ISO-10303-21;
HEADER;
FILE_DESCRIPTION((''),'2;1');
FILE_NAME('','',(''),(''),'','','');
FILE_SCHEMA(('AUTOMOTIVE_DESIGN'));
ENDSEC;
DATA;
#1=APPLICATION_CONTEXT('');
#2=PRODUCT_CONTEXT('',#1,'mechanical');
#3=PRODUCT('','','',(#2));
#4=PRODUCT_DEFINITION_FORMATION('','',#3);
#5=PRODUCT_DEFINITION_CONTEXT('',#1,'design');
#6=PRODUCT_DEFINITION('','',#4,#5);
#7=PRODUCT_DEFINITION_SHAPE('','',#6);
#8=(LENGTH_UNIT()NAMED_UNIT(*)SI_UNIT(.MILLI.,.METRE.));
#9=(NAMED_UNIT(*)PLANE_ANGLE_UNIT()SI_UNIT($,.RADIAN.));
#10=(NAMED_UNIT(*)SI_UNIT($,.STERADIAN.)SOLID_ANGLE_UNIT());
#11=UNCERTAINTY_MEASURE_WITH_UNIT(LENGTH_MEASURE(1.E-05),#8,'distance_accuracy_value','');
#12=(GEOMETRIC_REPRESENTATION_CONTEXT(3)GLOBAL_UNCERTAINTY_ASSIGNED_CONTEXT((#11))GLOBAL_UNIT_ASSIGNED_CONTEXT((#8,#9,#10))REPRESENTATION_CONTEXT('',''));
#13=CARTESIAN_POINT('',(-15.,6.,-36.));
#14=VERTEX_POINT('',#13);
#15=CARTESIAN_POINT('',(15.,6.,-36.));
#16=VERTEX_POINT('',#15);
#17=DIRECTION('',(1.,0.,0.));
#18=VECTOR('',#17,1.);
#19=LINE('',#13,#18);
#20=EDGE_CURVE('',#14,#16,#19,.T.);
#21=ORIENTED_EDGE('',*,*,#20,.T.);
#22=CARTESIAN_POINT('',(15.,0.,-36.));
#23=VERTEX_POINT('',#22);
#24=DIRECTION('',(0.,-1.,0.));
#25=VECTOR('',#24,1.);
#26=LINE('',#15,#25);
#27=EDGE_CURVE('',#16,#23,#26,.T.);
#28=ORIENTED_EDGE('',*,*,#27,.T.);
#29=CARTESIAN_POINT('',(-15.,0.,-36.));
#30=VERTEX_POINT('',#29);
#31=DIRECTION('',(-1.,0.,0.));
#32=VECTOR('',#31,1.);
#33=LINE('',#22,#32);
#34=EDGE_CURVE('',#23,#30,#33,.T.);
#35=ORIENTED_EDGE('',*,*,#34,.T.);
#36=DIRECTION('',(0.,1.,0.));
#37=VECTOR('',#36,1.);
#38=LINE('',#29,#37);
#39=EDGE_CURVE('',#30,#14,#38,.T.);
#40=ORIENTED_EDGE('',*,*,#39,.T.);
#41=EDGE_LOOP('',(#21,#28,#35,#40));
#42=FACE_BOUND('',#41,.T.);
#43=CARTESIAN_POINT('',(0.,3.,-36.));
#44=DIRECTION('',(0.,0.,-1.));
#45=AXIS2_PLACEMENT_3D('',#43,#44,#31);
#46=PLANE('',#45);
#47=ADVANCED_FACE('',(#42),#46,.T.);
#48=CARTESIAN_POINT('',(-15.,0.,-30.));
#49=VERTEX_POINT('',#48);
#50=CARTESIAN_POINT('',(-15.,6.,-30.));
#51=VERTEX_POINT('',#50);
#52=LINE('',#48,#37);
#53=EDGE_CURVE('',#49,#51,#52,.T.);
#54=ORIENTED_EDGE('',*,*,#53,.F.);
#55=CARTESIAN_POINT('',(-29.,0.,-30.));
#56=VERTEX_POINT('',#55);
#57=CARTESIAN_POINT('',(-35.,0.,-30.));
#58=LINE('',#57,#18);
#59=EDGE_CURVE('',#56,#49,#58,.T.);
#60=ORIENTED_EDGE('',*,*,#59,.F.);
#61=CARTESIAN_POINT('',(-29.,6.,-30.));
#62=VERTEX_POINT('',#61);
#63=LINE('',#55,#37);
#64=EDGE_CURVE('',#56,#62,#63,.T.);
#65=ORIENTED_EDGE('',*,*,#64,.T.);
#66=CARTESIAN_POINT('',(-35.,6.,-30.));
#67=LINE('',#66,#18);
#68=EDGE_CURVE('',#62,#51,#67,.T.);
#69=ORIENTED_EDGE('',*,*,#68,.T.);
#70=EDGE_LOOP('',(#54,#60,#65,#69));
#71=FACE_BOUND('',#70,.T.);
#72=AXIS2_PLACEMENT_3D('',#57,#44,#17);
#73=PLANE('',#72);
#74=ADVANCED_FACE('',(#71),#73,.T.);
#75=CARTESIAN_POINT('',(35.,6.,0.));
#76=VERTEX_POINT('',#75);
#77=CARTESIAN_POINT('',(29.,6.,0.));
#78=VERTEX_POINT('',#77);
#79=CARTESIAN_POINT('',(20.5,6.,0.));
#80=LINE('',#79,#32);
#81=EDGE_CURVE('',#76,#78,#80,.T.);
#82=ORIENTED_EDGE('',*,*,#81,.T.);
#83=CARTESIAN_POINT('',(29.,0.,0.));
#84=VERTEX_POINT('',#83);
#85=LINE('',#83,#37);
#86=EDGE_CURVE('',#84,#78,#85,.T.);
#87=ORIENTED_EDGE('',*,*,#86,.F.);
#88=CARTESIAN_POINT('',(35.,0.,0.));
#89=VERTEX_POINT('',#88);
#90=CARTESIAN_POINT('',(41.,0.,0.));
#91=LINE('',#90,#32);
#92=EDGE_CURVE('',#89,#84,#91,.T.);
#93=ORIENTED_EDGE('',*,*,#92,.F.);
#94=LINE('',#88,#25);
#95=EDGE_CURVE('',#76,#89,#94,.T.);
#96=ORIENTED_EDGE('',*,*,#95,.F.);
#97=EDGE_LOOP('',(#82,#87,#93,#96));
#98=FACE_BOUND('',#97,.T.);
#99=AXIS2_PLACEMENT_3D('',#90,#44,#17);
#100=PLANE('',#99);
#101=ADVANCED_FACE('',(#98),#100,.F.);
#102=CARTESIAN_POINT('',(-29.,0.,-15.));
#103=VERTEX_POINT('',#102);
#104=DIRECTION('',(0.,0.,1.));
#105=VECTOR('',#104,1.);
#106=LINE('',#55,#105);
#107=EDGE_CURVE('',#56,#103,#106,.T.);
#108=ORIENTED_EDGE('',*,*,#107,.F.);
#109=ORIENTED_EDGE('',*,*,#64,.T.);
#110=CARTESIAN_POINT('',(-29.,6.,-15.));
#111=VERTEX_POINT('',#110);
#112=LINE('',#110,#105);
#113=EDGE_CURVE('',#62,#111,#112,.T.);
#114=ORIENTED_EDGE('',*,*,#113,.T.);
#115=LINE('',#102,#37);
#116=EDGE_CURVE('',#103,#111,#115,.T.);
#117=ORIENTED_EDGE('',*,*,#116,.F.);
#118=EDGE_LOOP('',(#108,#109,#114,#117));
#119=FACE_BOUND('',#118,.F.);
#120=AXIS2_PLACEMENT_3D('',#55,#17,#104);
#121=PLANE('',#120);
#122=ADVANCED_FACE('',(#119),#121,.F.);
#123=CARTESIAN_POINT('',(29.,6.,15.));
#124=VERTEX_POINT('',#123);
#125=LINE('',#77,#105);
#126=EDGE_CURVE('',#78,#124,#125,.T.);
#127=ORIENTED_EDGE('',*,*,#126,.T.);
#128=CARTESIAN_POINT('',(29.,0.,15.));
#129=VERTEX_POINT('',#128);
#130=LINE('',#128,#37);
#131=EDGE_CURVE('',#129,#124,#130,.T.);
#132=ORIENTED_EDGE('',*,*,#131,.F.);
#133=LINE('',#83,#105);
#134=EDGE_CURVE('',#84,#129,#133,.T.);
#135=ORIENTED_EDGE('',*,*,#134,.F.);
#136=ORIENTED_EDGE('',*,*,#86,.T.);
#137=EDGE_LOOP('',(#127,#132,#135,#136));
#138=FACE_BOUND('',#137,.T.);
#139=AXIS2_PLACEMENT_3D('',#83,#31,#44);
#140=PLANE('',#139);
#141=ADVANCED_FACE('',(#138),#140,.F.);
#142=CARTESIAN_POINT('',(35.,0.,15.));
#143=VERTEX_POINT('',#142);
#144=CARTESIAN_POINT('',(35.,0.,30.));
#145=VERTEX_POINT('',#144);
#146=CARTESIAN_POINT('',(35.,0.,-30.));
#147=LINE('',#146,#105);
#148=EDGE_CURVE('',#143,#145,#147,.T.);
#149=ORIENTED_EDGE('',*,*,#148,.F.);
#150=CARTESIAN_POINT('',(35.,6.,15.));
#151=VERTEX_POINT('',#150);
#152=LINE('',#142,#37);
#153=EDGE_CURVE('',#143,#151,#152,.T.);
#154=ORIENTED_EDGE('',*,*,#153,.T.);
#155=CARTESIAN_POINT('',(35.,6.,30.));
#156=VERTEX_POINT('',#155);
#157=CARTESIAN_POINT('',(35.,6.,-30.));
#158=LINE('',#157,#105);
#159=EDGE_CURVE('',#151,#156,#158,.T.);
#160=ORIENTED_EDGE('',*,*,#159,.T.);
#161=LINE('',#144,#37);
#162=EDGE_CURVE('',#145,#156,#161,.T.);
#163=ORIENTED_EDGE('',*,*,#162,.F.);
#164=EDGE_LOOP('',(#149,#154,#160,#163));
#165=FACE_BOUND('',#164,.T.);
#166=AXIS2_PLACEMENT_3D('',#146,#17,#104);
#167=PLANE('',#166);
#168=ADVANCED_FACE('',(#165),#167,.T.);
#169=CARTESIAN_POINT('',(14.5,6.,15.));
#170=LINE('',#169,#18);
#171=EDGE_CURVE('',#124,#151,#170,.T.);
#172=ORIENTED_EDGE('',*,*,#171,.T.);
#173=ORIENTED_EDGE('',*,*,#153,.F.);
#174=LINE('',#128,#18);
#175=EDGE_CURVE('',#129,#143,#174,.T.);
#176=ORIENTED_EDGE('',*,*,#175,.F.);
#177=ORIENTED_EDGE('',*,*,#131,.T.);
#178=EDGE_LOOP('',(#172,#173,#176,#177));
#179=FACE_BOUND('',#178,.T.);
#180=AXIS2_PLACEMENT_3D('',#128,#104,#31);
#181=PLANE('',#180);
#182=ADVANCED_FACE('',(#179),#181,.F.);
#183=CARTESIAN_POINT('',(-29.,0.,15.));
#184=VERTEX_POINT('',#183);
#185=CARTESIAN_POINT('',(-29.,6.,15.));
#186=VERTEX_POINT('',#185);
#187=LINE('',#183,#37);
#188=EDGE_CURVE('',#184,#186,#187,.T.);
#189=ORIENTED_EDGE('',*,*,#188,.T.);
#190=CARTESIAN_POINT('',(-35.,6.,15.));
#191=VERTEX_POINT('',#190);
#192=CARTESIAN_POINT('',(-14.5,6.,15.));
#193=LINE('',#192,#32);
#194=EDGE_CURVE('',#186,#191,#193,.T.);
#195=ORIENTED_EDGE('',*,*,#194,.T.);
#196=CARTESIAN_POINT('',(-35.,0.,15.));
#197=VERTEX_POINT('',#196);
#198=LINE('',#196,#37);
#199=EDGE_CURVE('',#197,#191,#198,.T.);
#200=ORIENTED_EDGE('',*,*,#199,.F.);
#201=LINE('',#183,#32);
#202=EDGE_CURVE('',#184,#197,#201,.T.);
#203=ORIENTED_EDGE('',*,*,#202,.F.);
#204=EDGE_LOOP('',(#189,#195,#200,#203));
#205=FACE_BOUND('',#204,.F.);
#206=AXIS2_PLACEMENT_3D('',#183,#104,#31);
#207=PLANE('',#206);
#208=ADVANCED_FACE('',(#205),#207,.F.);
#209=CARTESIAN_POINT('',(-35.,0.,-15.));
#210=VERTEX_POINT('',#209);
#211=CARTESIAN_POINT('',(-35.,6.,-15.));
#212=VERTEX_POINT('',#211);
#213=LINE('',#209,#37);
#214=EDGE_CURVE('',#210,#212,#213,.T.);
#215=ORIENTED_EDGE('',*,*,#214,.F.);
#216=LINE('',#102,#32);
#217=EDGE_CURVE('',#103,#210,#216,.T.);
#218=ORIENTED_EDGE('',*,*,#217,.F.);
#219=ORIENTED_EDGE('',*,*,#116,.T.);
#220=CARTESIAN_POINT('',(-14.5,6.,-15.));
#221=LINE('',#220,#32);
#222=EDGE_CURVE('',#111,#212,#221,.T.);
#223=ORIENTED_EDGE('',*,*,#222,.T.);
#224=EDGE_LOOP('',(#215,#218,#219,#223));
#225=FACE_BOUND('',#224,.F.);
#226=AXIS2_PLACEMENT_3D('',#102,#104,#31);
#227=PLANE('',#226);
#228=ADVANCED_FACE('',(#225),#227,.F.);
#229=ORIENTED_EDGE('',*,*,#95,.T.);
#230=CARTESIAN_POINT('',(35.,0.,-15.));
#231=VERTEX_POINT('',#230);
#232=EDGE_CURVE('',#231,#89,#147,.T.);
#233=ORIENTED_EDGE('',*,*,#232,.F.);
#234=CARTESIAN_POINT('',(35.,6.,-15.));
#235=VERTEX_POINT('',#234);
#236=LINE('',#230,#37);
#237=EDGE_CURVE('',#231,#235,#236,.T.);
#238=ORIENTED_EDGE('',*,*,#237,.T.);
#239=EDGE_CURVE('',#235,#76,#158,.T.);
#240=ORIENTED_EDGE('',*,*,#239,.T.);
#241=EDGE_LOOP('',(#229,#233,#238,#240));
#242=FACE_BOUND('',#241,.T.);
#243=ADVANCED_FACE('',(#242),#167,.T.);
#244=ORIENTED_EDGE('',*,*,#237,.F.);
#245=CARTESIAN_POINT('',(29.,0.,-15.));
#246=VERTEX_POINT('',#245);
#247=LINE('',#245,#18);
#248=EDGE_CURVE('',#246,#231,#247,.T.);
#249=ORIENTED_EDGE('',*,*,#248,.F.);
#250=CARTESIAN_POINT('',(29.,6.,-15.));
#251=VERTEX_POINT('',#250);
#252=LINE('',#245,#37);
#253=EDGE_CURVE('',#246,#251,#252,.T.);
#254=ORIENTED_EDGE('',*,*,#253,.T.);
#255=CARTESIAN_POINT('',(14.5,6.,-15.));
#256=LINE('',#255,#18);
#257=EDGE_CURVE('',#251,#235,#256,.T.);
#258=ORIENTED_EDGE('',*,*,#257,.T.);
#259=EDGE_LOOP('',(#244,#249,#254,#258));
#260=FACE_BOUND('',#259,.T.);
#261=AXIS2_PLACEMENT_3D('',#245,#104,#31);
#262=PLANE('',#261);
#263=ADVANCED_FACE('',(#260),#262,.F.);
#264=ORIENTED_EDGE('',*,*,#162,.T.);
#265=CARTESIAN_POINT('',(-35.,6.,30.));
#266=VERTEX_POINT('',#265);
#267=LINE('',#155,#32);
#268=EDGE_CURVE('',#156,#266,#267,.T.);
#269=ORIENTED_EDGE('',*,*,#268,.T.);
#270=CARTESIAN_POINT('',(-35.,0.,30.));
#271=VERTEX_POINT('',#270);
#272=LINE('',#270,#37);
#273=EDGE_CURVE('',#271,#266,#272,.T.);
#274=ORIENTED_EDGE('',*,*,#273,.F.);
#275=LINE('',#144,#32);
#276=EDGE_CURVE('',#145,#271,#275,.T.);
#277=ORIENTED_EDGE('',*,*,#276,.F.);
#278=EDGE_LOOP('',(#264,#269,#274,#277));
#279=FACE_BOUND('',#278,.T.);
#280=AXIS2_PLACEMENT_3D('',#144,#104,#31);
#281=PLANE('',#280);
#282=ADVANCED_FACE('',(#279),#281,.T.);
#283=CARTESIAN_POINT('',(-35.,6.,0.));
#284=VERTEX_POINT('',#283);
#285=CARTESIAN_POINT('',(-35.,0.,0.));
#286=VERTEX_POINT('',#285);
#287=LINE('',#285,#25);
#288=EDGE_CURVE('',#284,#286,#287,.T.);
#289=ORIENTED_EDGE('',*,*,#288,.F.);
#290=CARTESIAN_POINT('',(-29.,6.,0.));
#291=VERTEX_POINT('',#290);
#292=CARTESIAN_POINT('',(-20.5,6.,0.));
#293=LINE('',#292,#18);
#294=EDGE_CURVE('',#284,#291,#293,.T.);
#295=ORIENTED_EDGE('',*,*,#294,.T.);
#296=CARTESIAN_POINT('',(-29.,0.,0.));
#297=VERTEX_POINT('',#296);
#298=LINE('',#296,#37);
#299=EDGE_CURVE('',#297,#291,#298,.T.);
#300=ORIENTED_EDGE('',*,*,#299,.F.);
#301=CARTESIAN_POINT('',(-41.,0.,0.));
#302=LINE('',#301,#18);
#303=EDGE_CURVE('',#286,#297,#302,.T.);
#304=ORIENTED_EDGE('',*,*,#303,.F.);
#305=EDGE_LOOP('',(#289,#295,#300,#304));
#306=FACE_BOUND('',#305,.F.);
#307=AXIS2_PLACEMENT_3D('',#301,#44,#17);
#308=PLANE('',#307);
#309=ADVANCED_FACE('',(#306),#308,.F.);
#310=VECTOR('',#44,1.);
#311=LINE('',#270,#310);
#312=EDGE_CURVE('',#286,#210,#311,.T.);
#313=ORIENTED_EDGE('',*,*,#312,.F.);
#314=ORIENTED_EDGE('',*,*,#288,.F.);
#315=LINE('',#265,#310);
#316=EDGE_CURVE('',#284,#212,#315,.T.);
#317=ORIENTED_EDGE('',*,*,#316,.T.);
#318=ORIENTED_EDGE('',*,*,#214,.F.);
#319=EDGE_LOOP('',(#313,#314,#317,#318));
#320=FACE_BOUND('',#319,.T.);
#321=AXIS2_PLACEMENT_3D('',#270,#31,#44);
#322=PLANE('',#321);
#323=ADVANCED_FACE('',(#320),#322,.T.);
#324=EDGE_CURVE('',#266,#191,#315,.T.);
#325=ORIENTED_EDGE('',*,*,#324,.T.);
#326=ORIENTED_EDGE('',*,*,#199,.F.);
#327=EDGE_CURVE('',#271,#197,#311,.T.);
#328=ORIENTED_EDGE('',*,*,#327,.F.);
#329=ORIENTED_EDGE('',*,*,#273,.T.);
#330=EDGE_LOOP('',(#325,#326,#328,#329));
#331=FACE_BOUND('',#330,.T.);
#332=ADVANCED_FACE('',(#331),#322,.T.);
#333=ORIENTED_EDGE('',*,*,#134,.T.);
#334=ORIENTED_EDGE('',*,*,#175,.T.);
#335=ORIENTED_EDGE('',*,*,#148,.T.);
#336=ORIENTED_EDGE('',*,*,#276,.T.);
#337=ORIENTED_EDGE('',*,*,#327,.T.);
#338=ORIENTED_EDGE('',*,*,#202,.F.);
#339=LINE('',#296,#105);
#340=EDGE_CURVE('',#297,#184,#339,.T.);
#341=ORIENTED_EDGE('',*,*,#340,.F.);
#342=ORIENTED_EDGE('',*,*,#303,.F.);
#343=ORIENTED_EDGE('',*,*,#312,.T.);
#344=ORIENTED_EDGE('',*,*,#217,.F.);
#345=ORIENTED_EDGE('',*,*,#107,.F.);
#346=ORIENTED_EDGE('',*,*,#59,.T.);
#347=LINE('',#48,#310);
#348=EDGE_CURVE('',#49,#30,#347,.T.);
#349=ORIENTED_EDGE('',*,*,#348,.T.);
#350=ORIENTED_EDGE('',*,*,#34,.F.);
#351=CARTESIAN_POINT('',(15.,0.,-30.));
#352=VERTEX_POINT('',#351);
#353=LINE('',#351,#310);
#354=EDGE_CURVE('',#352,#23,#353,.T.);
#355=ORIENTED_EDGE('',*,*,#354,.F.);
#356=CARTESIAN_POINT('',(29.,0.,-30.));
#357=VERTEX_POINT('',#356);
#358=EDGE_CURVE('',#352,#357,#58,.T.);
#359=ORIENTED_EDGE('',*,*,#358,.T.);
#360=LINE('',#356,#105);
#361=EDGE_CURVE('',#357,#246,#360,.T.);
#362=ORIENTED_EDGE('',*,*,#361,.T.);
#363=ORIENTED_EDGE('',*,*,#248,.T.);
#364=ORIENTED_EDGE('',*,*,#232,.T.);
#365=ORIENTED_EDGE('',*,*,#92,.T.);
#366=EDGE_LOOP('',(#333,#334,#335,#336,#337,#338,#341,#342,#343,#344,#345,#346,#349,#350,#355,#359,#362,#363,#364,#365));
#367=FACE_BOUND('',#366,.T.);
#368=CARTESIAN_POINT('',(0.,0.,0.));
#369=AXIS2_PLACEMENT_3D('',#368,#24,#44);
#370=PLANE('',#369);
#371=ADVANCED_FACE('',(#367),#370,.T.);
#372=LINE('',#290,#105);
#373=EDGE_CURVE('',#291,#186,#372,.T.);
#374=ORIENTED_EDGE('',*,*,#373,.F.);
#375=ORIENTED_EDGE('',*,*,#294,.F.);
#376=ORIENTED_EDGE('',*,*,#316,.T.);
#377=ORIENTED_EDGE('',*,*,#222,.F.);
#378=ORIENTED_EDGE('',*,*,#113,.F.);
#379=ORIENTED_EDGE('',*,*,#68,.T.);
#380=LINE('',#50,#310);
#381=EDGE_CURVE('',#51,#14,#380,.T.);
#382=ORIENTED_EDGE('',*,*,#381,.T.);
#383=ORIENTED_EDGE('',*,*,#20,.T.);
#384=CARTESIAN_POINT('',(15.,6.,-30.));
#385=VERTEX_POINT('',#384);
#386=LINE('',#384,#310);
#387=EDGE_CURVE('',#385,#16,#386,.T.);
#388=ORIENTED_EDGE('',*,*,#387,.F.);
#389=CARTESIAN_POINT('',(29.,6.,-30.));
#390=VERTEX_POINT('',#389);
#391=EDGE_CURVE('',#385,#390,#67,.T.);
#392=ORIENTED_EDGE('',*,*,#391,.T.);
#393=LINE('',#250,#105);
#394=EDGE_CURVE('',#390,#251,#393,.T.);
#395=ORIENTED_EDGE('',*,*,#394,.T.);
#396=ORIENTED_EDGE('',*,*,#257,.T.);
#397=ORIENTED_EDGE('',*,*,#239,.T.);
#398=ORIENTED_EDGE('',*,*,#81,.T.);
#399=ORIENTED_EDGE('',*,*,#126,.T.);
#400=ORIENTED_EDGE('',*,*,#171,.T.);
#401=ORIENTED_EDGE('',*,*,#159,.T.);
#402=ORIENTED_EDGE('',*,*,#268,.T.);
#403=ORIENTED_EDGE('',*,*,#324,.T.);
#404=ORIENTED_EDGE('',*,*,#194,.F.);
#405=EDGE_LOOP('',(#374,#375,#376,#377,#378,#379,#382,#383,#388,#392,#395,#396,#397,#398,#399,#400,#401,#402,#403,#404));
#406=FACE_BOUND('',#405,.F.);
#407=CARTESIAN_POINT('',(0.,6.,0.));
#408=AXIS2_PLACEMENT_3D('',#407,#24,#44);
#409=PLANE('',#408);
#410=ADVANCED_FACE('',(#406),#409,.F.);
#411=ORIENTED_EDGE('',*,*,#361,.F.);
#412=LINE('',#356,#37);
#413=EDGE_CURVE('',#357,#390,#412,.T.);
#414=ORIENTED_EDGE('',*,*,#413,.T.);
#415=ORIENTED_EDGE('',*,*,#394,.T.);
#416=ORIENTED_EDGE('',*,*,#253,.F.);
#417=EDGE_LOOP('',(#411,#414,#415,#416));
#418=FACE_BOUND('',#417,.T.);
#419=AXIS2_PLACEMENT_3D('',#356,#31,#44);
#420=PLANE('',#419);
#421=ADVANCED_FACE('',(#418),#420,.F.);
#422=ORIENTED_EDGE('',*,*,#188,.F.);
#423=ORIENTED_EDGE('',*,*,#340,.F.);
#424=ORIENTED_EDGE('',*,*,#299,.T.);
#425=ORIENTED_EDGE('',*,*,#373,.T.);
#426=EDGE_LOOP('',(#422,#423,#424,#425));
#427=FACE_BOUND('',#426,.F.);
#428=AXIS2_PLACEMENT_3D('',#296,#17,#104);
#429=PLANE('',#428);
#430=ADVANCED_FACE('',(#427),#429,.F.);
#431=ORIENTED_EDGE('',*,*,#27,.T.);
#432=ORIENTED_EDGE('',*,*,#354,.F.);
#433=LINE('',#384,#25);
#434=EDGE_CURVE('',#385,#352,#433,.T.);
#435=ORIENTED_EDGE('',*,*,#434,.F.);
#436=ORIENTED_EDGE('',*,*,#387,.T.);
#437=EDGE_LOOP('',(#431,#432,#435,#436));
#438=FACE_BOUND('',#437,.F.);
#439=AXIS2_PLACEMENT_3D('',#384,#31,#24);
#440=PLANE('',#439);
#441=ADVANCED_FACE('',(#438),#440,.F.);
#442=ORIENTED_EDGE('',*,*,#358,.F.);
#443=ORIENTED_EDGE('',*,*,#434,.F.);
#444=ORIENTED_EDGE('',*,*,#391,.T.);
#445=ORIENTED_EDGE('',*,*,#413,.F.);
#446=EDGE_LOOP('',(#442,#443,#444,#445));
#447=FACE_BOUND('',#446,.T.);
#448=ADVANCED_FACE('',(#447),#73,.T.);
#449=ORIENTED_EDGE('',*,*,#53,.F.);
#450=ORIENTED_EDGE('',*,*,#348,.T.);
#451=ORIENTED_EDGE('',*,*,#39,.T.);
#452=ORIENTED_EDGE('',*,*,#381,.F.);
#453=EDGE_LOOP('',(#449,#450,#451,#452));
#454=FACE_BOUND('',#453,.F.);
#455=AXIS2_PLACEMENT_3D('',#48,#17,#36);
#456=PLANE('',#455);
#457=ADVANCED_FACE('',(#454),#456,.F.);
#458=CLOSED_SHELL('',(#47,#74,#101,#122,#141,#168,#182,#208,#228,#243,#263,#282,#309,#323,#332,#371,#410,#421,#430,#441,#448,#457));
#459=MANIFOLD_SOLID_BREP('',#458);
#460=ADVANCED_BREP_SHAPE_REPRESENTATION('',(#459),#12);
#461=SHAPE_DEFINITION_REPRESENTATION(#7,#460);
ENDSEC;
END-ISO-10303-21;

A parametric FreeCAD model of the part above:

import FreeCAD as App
import Part
import Sketcher


def add_polygon(sketch, points):
    """Adds a closed chain of lines whose ends are joined by coincident constraints."""
    first, n = sketch.GeometryCount, len(points)
    for a, b in zip(points, points[1:] + points[:1]):
        sketch.addGeometry(Part.LineSegment(App.Vector(*a, 0), App.Vector(*b, 0)), False)
    for i in range(n):
        sketch.addConstraint(Sketcher.Constraint("Coincident", first + i, 2, first + (i + 1) % n, 1))

doc = App.newDocument("Part")
params = doc.addObject("Spreadsheet::Sheet", "Params")
for row, (alias, value) in enumerate([
    ("sketch1_height", "60 mm"),
    ("pad1_length", "6 mm"),
    ("sketch2_height", "6 mm"),
    ("pad2_length", "6 mm"),
    ("sketch3_width", "12 mm"),
    ("sketch3_height", "15 mm"),
    ("sketch4_width", "12 mm"),
    ("sketch4_height", "15 mm"),
], start=1):
    params.set(f"A{row}", alias)
    params.set(f"B{row}", "=" + value)
    params.setAlias(f"B{row}", alias)

body = doc.addObject("PartDesign::Body", "Body")

# Sketch on XZ plane
sketch1 = doc.addObject("Sketcher::SketchObject", "Sketch")
body.addObject(sketch1)
sketch1.AttachmentSupport = (doc.XZ_Plane, [""])
sketch1.MapMode = "FlatFace"
add_polygon(sketch1, [(-35, 30), (-35, -30), (35, -30), (35, 30)])  # lines 0-3
sketch1.addConstraint([
    Sketcher.Constraint("Vertical", 0),
    Sketcher.Constraint("Horizontal", 1),
    Sketcher.Constraint("Vertical", 2),
    Sketcher.Constraint("Horizontal", 3),
    Sketcher.Constraint("Symmetric", 0, 2, 2, 2, -1, 1),
    Sketcher.Constraint("DistanceX", 0, 2, -1, 1, 35.0),
    Sketcher.Constraint("DistanceY", 0, 2, 0, 1, 60.0),
])
sketch1.setExpression("Constraints[10]", "Params.sketch1_height")
pad1 = doc.addObject("PartDesign::Pad", "Pad")
body.addObject(pad1)
pad1.Profile = sketch1
pad1.setExpression("Length", "Params.pad1_length")
pad1.Reversed = True

# Sketch on XY plane
sketch2 = doc.addObject("Sketcher::SketchObject", "Sketch001")
body.addObject(sketch2)
sketch2.AttachmentSupport = (doc.XY_Plane, [""])
sketch2.MapMode = "FlatFace"
sketch2.AttachmentOffset = App.Placement(App.Vector(0, 0, -30), App.Rotation())
add_polygon(sketch2, [(-15, 0), (-15, 6), (15, 6), (15, 0)])  # lines 0-3
sketch2.addConstraint([
    Sketcher.Constraint("Vertical", 0),
    Sketcher.Constraint("Horizontal", 1),
    Sketcher.Constraint("Vertical", 2),
    Sketcher.Constraint("Horizontal", 3),
    Sketcher.Constraint("Symmetric", 2, 2, 3, 2, -1, 1),
    Sketcher.Constraint("DistanceX", 0, 2, -1, 1, 15.0),
    Sketcher.Constraint("DistanceY", 0, 1, 0, 2, 6.0),
])
sketch2.setExpression("Constraints[10]", "Params.sketch2_height")
pad2 = doc.addObject("PartDesign::Pad", "Pad001")
body.addObject(pad2)
pad2.Profile = sketch2
pad2.setExpression("Length", "Params.pad2_length")
pad2.Reversed = True

# Sketch on XZ plane
sketch3 = doc.addObject("Sketcher::SketchObject", "Sketch002")
body.addObject(sketch3)
sketch3.AttachmentSupport = (doc.XZ_Plane, [""])
sketch3.MapMode = "FlatFace"
add_polygon(sketch3, [(-41, -15), (-41, -30), (-29, -30), (-29, -15)])  # lines 0-3
sketch3.addConstraint([
    Sketcher.Constraint("Vertical", 0),
    Sketcher.Constraint("Horizontal", 1),
    Sketcher.Constraint("Vertical", 2),
    Sketcher.Constraint("Horizontal", 3),
    Sketcher.Constraint("DistanceX", 1, 2, -1, 1, 29.0),
    Sketcher.Constraint("DistanceX", 1, 1, 1, 2, 12.0),
    Sketcher.Constraint("DistanceY", 0, 2, 0, 1, 15.0),
    Sketcher.Constraint("DistanceY", 0, 2, -1, 1, 30.0),
])
sketch3.setExpression("Constraints[9]", "Params.sketch3_width")
sketch3.setExpression("Constraints[10]", "Params.sketch3_height")
pocket1 = doc.addObject("PartDesign::Pocket", "Pocket")
body.addObject(pocket1)
pocket1.Profile = sketch3
pocket1.Type = "ThroughAll"

# Sketch on XZ plane
sketch4 = doc.addObject("Sketcher::SketchObject", "Sketch003")
body.addObject(sketch4)
sketch4.AttachmentSupport = (doc.XZ_Plane, [""])
sketch4.MapMode = "FlatFace"
add_polygon(sketch4, [(-41, 15), (-41, 0), (-29, 0), (-29, 15)])  # lines 0-3
sketch4.addConstraint([
    Sketcher.Constraint("Vertical", 0),
    Sketcher.Constraint("Horizontal", 1),
    Sketcher.Constraint("Vertical", 2),
    Sketcher.Constraint("Horizontal", 3),
    Sketcher.Constraint("PointOnObject", 0, 2, -1),
    Sketcher.Constraint("DistanceX", 1, 2, -1, 1, 29.0),
    Sketcher.Constraint("DistanceX", 1, 1, 1, 2, 12.0),
    Sketcher.Constraint("DistanceY", 0, 2, 0, 1, 15.0),
])
sketch4.setExpression("Constraints[10]", "Params.sketch4_width")
sketch4.setExpression("Constraints[11]", "Params.sketch4_height")
pocket2 = doc.addObject("PartDesign::Pocket", "Pocket001")
body.addObject(pocket2)
pocket2.Profile = sketch4
pocket2.Type = "ThroughAll"
doc.recompute()

mirrored = doc.addObject("PartDesign::Mirrored", "Mirrored")
body.addObject(mirrored)
mirrored.Originals = [pocket1, pocket2]
mirrored.MirrorPlane = (doc.YZ_Plane, [""])
body.Tip = mirrored

doc.recompute()
